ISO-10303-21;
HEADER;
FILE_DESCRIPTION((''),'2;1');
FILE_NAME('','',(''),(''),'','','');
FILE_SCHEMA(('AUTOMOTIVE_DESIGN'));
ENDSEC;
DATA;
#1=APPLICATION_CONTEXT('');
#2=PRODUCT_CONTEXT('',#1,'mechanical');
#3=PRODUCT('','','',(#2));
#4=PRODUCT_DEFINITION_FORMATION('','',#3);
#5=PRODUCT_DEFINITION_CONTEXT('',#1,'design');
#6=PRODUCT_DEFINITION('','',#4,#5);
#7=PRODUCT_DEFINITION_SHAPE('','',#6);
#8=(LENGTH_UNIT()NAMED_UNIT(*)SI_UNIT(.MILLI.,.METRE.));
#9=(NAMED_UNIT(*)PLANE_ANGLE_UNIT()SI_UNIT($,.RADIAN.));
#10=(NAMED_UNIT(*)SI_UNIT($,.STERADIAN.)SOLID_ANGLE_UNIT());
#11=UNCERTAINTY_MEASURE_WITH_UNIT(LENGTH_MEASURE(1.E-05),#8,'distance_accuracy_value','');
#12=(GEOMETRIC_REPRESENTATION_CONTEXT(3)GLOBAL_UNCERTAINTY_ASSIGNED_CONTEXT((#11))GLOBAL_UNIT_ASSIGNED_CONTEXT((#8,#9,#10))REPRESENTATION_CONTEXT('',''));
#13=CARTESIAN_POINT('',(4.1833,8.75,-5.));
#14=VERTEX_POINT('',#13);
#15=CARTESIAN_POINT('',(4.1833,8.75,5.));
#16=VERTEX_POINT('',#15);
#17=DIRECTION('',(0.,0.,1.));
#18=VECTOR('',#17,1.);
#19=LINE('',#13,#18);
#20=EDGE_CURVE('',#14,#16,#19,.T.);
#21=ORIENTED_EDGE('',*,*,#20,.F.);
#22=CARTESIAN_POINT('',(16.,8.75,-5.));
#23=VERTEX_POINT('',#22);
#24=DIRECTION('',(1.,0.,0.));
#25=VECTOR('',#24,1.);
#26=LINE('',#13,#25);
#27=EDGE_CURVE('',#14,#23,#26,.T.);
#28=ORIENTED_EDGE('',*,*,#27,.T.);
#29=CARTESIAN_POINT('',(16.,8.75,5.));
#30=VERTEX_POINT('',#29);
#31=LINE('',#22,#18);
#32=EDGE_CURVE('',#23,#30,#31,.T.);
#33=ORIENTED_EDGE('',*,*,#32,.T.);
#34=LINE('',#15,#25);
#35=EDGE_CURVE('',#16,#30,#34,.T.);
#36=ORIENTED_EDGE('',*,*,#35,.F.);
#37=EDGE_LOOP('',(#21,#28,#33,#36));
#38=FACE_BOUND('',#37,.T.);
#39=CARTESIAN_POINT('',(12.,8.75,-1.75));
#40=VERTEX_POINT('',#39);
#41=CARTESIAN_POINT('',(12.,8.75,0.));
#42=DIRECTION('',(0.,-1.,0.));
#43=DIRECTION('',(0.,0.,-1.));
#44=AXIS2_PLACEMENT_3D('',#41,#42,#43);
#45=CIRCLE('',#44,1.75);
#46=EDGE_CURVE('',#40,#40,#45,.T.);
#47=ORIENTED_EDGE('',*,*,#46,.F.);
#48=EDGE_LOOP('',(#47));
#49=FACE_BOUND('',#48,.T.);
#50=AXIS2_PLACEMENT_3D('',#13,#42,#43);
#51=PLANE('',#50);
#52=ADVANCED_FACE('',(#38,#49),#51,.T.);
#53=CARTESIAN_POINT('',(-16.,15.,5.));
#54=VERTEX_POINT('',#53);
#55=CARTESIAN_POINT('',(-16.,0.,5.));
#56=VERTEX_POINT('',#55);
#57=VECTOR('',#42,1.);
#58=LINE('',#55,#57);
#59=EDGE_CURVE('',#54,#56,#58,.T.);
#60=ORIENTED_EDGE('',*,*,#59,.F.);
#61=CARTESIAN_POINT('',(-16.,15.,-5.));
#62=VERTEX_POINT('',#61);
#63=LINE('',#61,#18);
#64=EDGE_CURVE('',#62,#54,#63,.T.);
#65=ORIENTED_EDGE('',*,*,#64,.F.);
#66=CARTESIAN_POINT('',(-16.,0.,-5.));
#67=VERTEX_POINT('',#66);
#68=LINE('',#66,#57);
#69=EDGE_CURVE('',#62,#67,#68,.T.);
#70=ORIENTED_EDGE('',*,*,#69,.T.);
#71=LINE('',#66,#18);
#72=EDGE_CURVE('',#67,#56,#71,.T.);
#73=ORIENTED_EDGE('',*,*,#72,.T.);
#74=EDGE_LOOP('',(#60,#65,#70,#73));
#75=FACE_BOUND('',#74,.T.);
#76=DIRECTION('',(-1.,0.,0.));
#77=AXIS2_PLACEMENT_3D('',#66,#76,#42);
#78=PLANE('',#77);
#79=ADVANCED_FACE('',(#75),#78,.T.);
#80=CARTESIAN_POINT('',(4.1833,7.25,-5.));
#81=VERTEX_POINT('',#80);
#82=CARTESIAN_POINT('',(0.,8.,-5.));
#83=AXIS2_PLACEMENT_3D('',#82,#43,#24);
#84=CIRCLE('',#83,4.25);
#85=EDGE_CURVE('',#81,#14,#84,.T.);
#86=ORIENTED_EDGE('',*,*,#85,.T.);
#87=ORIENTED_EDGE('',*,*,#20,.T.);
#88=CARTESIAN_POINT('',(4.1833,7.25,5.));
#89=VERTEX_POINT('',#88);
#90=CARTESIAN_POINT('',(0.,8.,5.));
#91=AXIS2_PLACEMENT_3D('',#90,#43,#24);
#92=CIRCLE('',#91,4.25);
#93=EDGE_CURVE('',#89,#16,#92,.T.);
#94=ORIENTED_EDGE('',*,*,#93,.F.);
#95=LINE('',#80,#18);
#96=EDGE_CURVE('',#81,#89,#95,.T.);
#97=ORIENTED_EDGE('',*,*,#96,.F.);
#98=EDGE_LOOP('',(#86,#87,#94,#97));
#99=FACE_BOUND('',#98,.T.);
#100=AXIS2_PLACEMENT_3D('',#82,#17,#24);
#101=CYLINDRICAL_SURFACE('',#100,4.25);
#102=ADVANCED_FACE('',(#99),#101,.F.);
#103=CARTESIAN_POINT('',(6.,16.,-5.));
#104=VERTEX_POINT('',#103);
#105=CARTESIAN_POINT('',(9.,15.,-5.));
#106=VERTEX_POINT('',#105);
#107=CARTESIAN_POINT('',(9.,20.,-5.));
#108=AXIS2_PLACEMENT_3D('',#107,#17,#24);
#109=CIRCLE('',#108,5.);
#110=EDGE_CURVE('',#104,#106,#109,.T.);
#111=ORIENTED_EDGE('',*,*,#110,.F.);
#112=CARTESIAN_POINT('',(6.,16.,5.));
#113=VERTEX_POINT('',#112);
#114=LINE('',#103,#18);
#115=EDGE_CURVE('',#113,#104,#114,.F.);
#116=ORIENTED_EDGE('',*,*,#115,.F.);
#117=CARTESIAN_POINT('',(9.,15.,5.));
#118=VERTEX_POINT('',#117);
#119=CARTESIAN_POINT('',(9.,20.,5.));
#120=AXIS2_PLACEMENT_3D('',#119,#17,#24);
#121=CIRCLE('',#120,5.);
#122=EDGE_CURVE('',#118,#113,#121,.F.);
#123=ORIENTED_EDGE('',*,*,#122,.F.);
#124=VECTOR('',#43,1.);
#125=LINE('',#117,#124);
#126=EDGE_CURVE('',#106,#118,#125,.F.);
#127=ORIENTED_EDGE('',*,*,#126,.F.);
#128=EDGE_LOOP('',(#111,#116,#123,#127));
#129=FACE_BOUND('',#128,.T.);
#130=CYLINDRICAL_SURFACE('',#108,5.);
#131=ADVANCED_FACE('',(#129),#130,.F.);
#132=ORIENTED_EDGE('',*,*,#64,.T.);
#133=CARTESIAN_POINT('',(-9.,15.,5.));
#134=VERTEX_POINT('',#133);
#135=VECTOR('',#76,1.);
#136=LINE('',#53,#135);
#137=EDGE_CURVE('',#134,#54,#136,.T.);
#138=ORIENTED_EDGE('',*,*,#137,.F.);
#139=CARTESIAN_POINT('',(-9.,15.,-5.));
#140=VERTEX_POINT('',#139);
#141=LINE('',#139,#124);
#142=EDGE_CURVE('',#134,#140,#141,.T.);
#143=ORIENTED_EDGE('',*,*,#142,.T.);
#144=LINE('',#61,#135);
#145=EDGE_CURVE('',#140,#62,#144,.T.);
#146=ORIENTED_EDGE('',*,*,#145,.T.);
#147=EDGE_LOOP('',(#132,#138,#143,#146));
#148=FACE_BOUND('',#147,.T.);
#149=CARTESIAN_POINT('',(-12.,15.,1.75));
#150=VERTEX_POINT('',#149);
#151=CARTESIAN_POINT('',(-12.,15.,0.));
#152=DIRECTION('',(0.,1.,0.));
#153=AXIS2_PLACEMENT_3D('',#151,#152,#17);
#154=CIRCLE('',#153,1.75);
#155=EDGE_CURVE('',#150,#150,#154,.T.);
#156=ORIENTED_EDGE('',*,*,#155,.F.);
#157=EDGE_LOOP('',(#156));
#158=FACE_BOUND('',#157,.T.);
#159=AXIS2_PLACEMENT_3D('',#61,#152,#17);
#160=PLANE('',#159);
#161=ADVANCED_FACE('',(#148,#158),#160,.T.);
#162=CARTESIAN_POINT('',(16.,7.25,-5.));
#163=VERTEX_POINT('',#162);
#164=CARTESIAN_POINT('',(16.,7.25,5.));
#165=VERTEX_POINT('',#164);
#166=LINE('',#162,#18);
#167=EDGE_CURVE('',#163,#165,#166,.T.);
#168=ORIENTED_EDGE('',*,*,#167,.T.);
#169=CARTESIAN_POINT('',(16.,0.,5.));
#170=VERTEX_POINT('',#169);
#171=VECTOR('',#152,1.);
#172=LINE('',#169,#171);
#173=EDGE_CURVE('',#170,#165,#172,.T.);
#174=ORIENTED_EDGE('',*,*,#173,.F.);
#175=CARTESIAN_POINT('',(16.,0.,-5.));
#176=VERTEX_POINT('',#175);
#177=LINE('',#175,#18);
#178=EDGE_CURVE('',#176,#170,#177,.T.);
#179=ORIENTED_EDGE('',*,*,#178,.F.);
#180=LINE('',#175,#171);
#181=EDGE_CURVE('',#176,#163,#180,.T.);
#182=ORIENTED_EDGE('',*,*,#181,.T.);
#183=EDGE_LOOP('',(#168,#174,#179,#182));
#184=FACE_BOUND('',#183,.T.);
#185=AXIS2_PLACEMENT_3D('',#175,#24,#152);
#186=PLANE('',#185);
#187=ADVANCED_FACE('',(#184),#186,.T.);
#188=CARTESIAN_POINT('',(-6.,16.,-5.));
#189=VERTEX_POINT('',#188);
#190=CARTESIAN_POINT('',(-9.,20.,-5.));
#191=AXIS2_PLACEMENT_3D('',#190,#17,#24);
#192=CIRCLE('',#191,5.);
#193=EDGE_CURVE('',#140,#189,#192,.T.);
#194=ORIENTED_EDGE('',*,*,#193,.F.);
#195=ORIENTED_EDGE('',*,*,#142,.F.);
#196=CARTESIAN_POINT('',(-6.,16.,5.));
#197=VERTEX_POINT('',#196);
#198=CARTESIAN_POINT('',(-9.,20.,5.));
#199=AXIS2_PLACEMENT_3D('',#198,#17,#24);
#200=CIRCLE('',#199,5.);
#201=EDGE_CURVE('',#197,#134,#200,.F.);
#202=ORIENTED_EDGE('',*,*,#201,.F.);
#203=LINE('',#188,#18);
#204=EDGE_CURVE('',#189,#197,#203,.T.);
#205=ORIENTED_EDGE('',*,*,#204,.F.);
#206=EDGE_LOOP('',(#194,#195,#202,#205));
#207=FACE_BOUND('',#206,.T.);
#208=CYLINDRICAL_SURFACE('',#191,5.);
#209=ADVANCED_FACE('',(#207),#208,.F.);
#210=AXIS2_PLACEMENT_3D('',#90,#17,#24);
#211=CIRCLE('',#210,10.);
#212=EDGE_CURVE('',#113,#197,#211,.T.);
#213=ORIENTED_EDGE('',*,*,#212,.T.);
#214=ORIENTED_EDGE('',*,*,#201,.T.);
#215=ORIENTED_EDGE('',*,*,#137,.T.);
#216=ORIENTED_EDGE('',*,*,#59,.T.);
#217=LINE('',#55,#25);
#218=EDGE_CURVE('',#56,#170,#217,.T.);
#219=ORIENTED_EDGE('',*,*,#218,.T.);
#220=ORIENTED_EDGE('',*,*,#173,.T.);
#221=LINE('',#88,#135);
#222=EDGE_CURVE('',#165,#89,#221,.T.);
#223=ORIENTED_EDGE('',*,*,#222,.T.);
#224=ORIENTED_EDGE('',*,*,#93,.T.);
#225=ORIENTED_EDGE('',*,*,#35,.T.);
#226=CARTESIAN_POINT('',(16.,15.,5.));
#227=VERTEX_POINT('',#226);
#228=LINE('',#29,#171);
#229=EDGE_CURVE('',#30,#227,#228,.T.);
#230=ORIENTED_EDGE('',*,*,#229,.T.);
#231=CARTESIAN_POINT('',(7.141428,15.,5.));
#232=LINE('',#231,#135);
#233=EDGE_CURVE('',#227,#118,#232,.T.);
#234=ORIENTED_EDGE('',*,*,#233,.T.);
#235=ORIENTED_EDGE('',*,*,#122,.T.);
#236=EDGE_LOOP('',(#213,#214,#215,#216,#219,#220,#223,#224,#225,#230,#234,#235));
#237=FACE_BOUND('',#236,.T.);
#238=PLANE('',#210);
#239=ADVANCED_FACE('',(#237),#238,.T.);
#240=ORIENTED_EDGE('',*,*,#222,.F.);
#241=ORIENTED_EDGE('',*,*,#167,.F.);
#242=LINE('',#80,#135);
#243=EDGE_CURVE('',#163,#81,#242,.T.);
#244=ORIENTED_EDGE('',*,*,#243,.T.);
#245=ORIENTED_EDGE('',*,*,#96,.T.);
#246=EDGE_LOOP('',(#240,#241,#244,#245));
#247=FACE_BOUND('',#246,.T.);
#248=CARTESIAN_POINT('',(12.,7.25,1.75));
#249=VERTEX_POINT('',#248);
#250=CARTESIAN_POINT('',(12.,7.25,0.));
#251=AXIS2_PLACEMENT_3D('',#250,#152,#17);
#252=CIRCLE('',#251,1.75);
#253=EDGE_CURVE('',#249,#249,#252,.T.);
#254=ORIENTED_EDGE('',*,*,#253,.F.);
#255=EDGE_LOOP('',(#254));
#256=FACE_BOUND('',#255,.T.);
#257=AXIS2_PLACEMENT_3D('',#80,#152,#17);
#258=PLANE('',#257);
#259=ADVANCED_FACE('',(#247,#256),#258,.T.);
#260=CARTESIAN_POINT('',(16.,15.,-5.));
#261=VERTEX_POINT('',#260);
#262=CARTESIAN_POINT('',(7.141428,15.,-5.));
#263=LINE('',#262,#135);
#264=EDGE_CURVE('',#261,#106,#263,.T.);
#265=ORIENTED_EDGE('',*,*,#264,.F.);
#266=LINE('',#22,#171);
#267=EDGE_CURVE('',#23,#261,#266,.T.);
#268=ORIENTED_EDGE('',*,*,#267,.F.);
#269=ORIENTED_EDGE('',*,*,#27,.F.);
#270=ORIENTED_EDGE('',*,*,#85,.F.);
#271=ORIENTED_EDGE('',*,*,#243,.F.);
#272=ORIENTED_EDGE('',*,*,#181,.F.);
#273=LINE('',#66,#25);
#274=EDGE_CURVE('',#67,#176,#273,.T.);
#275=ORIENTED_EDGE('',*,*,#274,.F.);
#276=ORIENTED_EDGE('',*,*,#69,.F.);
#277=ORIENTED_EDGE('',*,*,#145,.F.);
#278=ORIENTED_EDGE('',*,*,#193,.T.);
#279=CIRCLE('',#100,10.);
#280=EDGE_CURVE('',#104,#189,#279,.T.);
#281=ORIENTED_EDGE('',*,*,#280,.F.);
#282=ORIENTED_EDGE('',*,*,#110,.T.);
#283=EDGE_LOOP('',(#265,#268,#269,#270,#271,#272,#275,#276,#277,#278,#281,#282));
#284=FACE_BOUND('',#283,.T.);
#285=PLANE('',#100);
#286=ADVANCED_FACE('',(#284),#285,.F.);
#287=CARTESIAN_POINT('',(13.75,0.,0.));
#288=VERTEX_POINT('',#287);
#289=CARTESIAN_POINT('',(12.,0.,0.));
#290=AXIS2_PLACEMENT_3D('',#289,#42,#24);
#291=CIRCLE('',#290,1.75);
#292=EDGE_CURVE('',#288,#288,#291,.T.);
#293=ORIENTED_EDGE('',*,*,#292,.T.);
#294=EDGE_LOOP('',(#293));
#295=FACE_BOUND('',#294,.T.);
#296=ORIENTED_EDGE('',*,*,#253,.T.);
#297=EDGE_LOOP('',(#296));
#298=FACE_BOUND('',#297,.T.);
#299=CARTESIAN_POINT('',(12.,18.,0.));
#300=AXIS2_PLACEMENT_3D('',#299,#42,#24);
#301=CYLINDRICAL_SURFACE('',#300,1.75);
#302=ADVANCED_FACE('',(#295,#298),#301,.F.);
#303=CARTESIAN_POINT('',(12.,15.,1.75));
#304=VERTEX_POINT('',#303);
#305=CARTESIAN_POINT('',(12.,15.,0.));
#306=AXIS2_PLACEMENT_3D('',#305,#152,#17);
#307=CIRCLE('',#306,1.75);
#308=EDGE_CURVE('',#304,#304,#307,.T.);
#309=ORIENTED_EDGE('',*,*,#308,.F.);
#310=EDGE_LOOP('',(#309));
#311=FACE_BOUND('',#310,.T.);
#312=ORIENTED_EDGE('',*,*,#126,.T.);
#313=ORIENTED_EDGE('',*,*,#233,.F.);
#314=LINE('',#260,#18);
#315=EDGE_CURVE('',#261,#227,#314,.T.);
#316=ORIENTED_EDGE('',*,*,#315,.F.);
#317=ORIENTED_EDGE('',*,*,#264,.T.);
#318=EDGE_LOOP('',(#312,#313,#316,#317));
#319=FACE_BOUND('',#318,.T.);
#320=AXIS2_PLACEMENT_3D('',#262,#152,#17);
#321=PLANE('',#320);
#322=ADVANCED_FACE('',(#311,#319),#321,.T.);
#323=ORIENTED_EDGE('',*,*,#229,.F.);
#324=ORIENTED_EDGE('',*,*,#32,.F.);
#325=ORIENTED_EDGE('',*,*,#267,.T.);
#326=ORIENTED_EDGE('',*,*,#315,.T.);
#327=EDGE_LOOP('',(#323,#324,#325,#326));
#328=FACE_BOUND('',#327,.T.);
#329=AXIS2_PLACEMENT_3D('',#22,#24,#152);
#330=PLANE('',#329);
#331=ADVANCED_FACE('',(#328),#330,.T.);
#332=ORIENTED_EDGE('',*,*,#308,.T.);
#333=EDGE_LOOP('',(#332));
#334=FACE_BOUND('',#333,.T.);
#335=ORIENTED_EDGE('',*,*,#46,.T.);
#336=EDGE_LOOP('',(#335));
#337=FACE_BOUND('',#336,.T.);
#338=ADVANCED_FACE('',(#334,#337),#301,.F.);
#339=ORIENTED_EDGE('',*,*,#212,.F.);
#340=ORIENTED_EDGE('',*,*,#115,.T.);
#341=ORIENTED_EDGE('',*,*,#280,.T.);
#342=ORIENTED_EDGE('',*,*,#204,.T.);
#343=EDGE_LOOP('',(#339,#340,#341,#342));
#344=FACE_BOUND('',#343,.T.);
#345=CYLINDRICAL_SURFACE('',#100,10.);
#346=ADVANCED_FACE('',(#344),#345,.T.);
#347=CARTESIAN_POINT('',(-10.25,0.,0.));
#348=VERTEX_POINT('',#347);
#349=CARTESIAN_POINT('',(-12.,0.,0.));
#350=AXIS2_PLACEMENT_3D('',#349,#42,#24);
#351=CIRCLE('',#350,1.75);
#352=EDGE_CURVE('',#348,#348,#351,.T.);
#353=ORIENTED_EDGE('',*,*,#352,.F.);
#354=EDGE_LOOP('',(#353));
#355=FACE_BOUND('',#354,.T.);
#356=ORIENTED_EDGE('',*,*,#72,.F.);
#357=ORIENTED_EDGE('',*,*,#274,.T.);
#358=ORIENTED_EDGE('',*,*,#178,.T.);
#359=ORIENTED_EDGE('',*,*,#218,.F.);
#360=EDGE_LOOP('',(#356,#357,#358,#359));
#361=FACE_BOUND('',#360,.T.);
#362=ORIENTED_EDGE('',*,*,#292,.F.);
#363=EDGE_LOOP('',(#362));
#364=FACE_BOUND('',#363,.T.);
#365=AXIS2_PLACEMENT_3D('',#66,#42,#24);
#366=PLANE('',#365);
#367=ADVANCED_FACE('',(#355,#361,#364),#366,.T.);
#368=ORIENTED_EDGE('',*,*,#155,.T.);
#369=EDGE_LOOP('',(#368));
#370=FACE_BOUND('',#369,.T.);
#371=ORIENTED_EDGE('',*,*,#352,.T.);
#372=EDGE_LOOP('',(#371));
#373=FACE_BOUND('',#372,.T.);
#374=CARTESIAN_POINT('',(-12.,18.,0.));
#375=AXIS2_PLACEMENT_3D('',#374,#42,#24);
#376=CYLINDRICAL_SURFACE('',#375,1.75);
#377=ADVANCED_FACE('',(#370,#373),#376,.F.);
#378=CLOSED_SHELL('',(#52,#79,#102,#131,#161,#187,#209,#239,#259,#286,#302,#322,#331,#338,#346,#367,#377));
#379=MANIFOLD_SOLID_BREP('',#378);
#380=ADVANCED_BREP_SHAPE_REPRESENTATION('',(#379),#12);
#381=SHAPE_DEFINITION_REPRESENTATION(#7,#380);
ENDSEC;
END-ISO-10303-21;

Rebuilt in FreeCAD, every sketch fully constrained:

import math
import FreeCAD as App
import Part
import Sketcher

V = App.Vector


def edges_at(feature, points):
    """Names of the edges that pass closest to the given points."""
    edges = feature.Shape.Edges
    near = lambda p: min(range(len(edges)), key=lambda i: edges[i].distToShape(Part.Vertex(*p))[0])
    return sorted({f"Edge{near(p) + 1}" for p in points})

doc = App.newDocument("Part")
body = doc.addObject("PartDesign::Body", "Body")

sketch1 = body.newObject("Sketcher::SketchObject", "Sketch")
sketch1.AttachmentSupport = (doc.getObject("XY_Plane"), [""])
sketch1.MapMode = "FlatFace"
sketch1.addGeometry([
    Part.LineSegment(V(4.2, 8.8, 0), V(16, 8.8, 0)),
    Part.LineSegment(V(16, 8.8, 0), V(16, 15, 0)),
    Part.LineSegment(V(16, 15, 0), V(7.1, 15, 0)),
    Part.ArcOfCircle(Part.Circle(V(0, 8, 0), V(0, 0, 1), 10), math.radians(44), math.radians(136)),
    Part.LineSegment(V(-7.1, 15, 0), V(-16, 15, 0)),
    Part.LineSegment(V(-16, 15, 0), V(-16, 0, 0)),
    Part.LineSegment(V(-16, 0, 0), V(16, 0, 0)),
    Part.LineSegment(V(16, 0, 0), V(16, 7.2, 0)),
    Part.LineSegment(V(16, 7.2, 0), V(4.2, 7.2, 0)),
    Part.ArcOfCircle(Part.Circle(V(0, 8, 0), V(0, 0, 1), 4.2), math.radians(10), math.radians(350)),
], False)
sketch1.addConstraint([
    Sketcher.Constraint("Coincident", 0, 2, 1, 1),
    Sketcher.Constraint("Coincident", 1, 2, 2, 1),
    Sketcher.Constraint("Coincident", 2, 2, 3, 1),
    Sketcher.Constraint("Coincident", 3, 2, 4, 1),
    Sketcher.Constraint("Coincident", 4, 2, 5, 1),
    Sketcher.Constraint("Coincident", 5, 2, 6, 1),
    Sketcher.Constraint("Coincident", 6, 2, 7, 1),
    Sketcher.Constraint("Coincident", 7, 2, 8, 1),
    Sketcher.Constraint("Coincident", 8, 2, 9, 2),
    Sketcher.Constraint("Coincident", 9, 1, 0, 1),
    Sketcher.Constraint("Horizontal", 0),
    Sketcher.Constraint("Vertical", 1),
    Sketcher.Constraint("Horizontal", 2),
    Sketcher.Constraint("Horizontal", 4),
    Sketcher.Constraint("Vertical", 5),
    Sketcher.Constraint("Horizontal", 6),
    Sketcher.Constraint("Vertical", 7),
    Sketcher.Constraint("Horizontal", 8),
    Sketcher.Constraint("Coincident", 9, 3, 3, 3),
    Sketcher.Constraint("Symmetric", 5, 2, 6, 2, -1, 1),
    Sketcher.Constraint("Symmetric", 2, 2, 3, 2, -2),
    Sketcher.Constraint("Vertical", 1, 2, 6, 2),
    Sketcher.Constraint("Vertical", 8, 2, 9, 1),
    Sketcher.Constraint("Radius", 3, 10.0),
    Sketcher.Constraint("DistanceX", 6, 1, 6, 2, 32.0),
    Sketcher.Constraint("DistanceY", 5, 2, 5, 1, 15.0),
    Sketcher.Constraint("Radius", 9, 4.25),
    Sketcher.Constraint("DistanceY", -1, 1, 3, 3, 8.0),
    Sketcher.Constraint("DistanceY", 1, 1, 1, 2, 6.25),
])
pad1 = body.newObject("PartDesign::Pad", "Pad")
pad1.Profile = sketch1
pad1.Type = "TwoLengths"
pad1.Length = 5
pad1.Length2 = 5

sketch2 = body.newObject("Sketcher::SketchObject", "Sketch001")
sketch2.AttachmentSupport = (doc.getObject("XZ_Plane"), [""])
sketch2.MapMode = "FlatFace"
sketch2.addGeometry([
    Part.Circle(V(-12, 0, 0), V(0, 0, 1), 1.8),
    Part.Circle(V(12, 0, 0), V(0, 0, 1), 1.8),
], False)
sketch2.addConstraint([
    Sketcher.Constraint("Equal", 0, 1),
    Sketcher.Constraint("Symmetric", 0, 3, 1, 3, -1, 1),
    Sketcher.Constraint("PointOnObject", 0, 3, -1),
    Sketcher.Constraint("Diameter", 0, 3.5),
    Sketcher.Constraint("DistanceX", 0, 3, -1, 1, 12.0),
])
pocket1 = body.newObject("PartDesign::Pocket", "Pocket")
pocket1.Profile = sketch2
pocket1.Type = "ThroughAll"
doc.recompute()

fillet = body.newObject("PartDesign::Fillet", "Fillet")
fillet.Base = (pocket1, edges_at(pocket1, [(-7.141, 15, 0), (7.141, 15, 0)]))
fillet.Radius = 5

doc.recompute()
